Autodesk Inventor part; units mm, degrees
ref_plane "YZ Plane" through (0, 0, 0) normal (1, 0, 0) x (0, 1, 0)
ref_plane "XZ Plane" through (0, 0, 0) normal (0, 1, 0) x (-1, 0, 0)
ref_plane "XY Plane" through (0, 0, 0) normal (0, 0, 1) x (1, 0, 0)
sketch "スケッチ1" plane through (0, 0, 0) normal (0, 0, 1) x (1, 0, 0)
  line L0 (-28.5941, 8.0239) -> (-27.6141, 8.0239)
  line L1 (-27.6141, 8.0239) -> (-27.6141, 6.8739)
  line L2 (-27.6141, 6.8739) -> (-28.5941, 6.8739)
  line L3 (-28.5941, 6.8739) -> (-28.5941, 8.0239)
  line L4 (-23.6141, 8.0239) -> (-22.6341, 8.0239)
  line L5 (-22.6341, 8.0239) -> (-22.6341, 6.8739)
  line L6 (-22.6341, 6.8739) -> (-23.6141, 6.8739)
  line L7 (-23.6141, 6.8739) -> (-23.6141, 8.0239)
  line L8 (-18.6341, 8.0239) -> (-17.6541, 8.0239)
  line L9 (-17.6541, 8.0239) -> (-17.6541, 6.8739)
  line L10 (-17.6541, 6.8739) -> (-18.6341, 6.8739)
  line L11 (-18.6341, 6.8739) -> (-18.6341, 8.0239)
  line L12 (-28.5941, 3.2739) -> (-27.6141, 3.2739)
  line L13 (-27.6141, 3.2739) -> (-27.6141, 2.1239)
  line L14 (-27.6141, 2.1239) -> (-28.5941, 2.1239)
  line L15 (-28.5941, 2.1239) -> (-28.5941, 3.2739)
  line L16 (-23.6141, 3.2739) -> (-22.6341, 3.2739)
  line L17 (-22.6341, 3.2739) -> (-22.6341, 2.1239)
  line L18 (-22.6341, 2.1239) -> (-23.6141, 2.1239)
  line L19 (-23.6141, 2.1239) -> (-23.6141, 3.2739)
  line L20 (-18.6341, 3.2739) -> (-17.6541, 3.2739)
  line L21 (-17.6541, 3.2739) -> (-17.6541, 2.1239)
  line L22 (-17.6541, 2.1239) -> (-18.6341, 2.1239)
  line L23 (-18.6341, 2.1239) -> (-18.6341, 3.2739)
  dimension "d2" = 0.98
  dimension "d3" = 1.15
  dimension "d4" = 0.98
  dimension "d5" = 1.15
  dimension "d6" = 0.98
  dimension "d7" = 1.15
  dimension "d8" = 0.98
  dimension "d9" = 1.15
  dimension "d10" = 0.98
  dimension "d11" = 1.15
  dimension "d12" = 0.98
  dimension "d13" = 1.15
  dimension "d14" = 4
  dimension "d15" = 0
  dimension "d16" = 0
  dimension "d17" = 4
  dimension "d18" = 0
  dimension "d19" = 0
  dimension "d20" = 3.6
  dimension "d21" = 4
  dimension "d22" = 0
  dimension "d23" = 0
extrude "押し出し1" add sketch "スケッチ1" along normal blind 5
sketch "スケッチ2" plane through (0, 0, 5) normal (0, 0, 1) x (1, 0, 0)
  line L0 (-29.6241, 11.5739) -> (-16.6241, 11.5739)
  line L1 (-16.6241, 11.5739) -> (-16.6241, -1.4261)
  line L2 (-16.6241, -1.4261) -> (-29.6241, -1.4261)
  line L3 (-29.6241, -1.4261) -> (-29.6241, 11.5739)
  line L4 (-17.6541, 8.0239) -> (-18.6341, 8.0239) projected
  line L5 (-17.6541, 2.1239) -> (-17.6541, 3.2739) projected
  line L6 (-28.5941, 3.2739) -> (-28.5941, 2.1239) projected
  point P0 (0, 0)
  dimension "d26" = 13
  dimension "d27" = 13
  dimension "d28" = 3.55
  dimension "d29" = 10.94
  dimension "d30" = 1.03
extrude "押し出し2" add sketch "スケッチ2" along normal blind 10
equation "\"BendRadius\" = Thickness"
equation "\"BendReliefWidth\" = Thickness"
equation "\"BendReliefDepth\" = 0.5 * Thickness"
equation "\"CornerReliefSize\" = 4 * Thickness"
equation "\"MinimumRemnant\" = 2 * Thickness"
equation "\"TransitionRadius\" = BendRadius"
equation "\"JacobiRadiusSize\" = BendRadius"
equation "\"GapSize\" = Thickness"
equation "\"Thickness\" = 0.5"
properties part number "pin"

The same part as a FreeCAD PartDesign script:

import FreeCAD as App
import Part
import Sketcher

V = App.Vector

doc = App.newDocument("Part")
params = doc.addObject("Spreadsheet::Sheet", "Params")
for row, (alias, value) in enumerate([
    ("sketch1_width", "0.98 mm"),
    ("sketch1_height", "1.15 mm"),
    ("pad1_length", "5 mm"),
    ("sketch2_width", "13 mm"),
    ("pad2_length", "10 mm"),
], start=1):
    params.set(f"A{row}", alias)
    params.set(f"B{row}", "=" + value)
    params.setAlias(f"B{row}", alias)

body = doc.addObject("PartDesign::Body", "Body")
body.AllowCompound = True

sketch1 = doc.addObject("Sketcher::SketchObject", "Sketch")
body.addObject(sketch1)
sketch1.AttachmentSupport = (doc.XY_Plane, [""])
sketch1.MapMode = "FlatFace"
sketch1.addGeometry([
    Part.LineSegment(V(-27.6, 8, 0), V(-28.6, 8, 0)),
    Part.LineSegment(V(-28.6, 8, 0), V(-28.6, 6.9, 0)),
    Part.LineSegment(V(-28.6, 6.9, 0), V(-27.6, 6.9, 0)),
    Part.LineSegment(V(-27.6, 6.9, 0), V(-27.6, 8, 0)),
    Part.LineSegment(V(-22.6, 8, 0), V(-23.6, 8, 0)),
    Part.LineSegment(V(-23.6, 8, 0), V(-23.6, 6.9, 0)),
    Part.LineSegment(V(-23.6, 6.9, 0), V(-22.6, 6.9, 0)),
    Part.LineSegment(V(-22.6, 6.9, 0), V(-22.6, 8, 0)),
    Part.LineSegment(V(-17.7, 8, 0), V(-18.6, 8, 0)),
    Part.LineSegment(V(-18.6, 8, 0), V(-18.6, 6.9, 0)),
    Part.LineSegment(V(-18.6, 6.9, 0), V(-17.7, 6.9, 0)),
    Part.LineSegment(V(-17.7, 6.9, 0), V(-17.7, 8, 0)),
    Part.LineSegment(V(-27.6, 3.3, 0), V(-28.6, 3.3, 0)),
    Part.LineSegment(V(-28.6, 3.3, 0), V(-28.6, 2.1, 0)),
    Part.LineSegment(V(-28.6, 2.1, 0), V(-27.6, 2.1, 0)),
    Part.LineSegment(V(-27.6, 2.1, 0), V(-27.6, 3.3, 0)),
    Part.LineSegment(V(-22.6, 3.3, 0), V(-23.6, 3.3, 0)),
    Part.LineSegment(V(-23.6, 3.3, 0), V(-23.6, 2.1, 0)),
    Part.LineSegment(V(-23.6, 2.1, 0), V(-22.6, 2.1, 0)),
    Part.LineSegment(V(-22.6, 2.1, 0), V(-22.6, 3.3, 0)),
    Part.LineSegment(V(-17.7, 3.3, 0), V(-18.6, 3.3, 0)),
    Part.LineSegment(V(-18.6, 3.3, 0), V(-18.6, 2.1, 0)),
    Part.LineSegment(V(-18.6, 2.1, 0), V(-17.7, 2.1, 0)),
    Part.LineSegment(V(-17.7, 2.1, 0), V(-17.7, 3.3, 0)),
], False)
sketch1.addConstraint([
    Sketcher.Constraint("Coincident", 0, 2, 1, 1),
    Sketcher.Constraint("Coincident", 1, 2, 2, 1),
    Sketcher.Constraint("Coincident", 2, 2, 3, 1),
    Sketcher.Constraint("Coincident", 3, 2, 0, 1),
    Sketcher.Constraint("Coincident", 4, 2, 5, 1),
    Sketcher.Constraint("Coincident", 5, 2, 6, 1),
    Sketcher.Constraint("Coincident", 6, 2, 7, 1),
    Sketcher.Constraint("Coincident", 7, 2, 4, 1),
    Sketcher.Constraint("Coincident", 8, 2, 9, 1),
    Sketcher.Constraint("Coincident", 9, 2, 10, 1),
    Sketcher.Constraint("Coincident", 10, 2, 11, 1),
    Sketcher.Constraint("Coincident", 11, 2, 8, 1),
    Sketcher.Constraint("Coincident", 12, 2, 13, 1),
    Sketcher.Constraint("Coincident", 13, 2, 14, 1),
    Sketcher.Constraint("Coincident", 14, 2, 15, 1),
    Sketcher.Constraint("Coincident", 15, 2, 12, 1),
    Sketcher.Constraint("Coincident", 16, 2, 17, 1),
    Sketcher.Constraint("Coincident", 17, 2, 18, 1),
    Sketcher.Constraint("Coincident", 18, 2, 19, 1),
    Sketcher.Constraint("Coincident", 19, 2, 16, 1),
    Sketcher.Constraint("Coincident", 20, 2, 21, 1),
    Sketcher.Constraint("Coincident", 21, 2, 22, 1),
    Sketcher.Constraint("Coincident", 22, 2, 23, 1),
    Sketcher.Constraint("Coincident", 23, 2, 20, 1),
    Sketcher.Constraint("Horizontal", 0),
    Sketcher.Constraint("Vertical", 1),
    Sketcher.Constraint("Horizontal", 2),
    Sketcher.Constraint("Vertical", 3),
    Sketcher.Constraint("Horizontal", 4),
    Sketcher.Constraint("Vertical", 5),
    Sketcher.Constraint("Horizontal", 6),
    Sketcher.Constraint("Vertical", 7),
    Sketcher.Constraint("Horizontal", 8),
    Sketcher.Constraint("Vertical", 9),
    Sketcher.Constraint("Horizontal", 10),
    Sketcher.Constraint("Vertical", 11),
    Sketcher.Constraint("Horizontal", 12),
    Sketcher.Constraint("Vertical", 13),
    Sketcher.Constraint("Horizontal", 14),
    Sketcher.Constraint("Vertical", 15),
    Sketcher.Constraint("Horizontal", 16),
    Sketcher.Constraint("Vertical", 17),
    Sketcher.Constraint("Horizontal", 18),
    Sketcher.Constraint("Vertical", 19),
    Sketcher.Constraint("Horizontal", 20),
    Sketcher.Constraint("Vertical", 21),
    Sketcher.Constraint("Horizontal", 22),
    Sketcher.Constraint("Vertical", 23),
    Sketcher.Constraint("Horizontal", 3, 2, 4, 2),
    Sketcher.Constraint("Horizontal", 2, 2, 5, 2),
    Sketcher.Constraint("Horizontal", 7, 2, 8, 2),
    Sketcher.Constraint("Horizontal", 6, 2, 9, 2),
    Sketcher.Constraint("Horizontal", 15, 2, 16, 2),
    Sketcher.Constraint("Horizontal", 14, 2, 17, 2),
    Sketcher.Constraint("Horizontal", 19, 2, 20, 2),
    Sketcher.Constraint("Horizontal", 18, 2, 21, 2),
    Sketcher.Constraint("Vertical", 1, 2, 12, 2),
    Sketcher.Constraint("Vertical", 3, 2, 14, 2),
    Sketcher.Constraint("Vertical", 5, 2, 16, 2),
    Sketcher.Constraint("Vertical", 7, 2, 18, 2),
    Sketcher.Constraint("Vertical", 9, 2, 20, 2),
    Sketcher.Constraint("Vertical", 11, 2, 22, 2),
    Sketcher.Constraint("Equal", 2, 4),
    Sketcher.Constraint("Equal", 6, 8),
    Sketcher.Constraint("Equal", 11, 13),
    Sketcher.Constraint("DistanceX", 3, 2, 4, 2, 4.0),
    Sketcher.Constraint("DistanceX", 7, 2, 8, 2, 4.0),
    Sketcher.Constraint("DistanceX", 0, 2, 0, 1, 0.98),
    Sketcher.Constraint("DistanceY", 1, 2, 1, 1, 1.15),
    Sketcher.Constraint("DistanceY", 12, 2, 1, 2, 3.6),
    Sketcher.Constraint("DistanceX", 0, 2, -1, 1, 28.594),
    Sketcher.Constraint("DistanceY", -1, 1, 0, 2, 8.024),
])
sketch1.setExpression("Constraints[67]", "Params.sketch1_width")
sketch1.setExpression("Constraints[68]", "Params.sketch1_height")
pad1 = doc.addObject("PartDesign::Pad", "Pad")
body.addObject(pad1)
pad1.Profile = sketch1
pad1.setExpression("Length", "Params.pad1_length")

sketch2 = doc.addObject("Sketcher::SketchObject", "Sketch001")
body.addObject(sketch2)
sketch2.AttachmentSupport = (doc.XY_Plane, [""])
sketch2.MapMode = "FlatFace"
sketch2.AttachmentOffset = App.Placement(V(0, 0, 5), App.Rotation())
sketch2.addGeometry([
    Part.LineSegment(V(-17, 12, 0), V(-30, 12, 0)),
    Part.LineSegment(V(-30, 12, 0), V(-30, -1, 0)),
    Part.LineSegment(V(-30, -1, 0), V(-17, -1, 0)),
    Part.LineSegment(V(-17, -1, 0), V(-17, 12, 0)),
], False)
sketch2.addConstraint([
    Sketcher.Constraint("Coincident", 0, 2, 1, 1),
    Sketcher.Constraint("Coincident", 1, 2, 2, 1),
    Sketcher.Constraint("Coincident", 2, 2, 3, 1),
    Sketcher.Constraint("Coincident", 3, 2, 0, 1),
    Sketcher.Constraint("Horizontal", 0),
    Sketcher.Constraint("Vertical", 1),
    Sketcher.Constraint("Horizontal", 2),
    Sketcher.Constraint("Vertical", 3),
    Sketcher.Constraint("Equal", 2, 1),
    Sketcher.Constraint("DistanceX", 0, 2, 0, 1, 13.0),
    Sketcher.Constraint("DistanceX", 0, 2, -1, 1, 29.624),
    Sketcher.Constraint("DistanceY", -1, 1, 0, 2, 11.574),
])
sketch2.setExpression("Constraints[9]", "Params.sketch2_width")
pad2 = doc.addObject("PartDesign::Pad", "Pad001")
body.addObject(pad2)
pad2.Profile = sketch2
pad2.setExpression("Length", "Params.pad2_length")

doc.recompute()
